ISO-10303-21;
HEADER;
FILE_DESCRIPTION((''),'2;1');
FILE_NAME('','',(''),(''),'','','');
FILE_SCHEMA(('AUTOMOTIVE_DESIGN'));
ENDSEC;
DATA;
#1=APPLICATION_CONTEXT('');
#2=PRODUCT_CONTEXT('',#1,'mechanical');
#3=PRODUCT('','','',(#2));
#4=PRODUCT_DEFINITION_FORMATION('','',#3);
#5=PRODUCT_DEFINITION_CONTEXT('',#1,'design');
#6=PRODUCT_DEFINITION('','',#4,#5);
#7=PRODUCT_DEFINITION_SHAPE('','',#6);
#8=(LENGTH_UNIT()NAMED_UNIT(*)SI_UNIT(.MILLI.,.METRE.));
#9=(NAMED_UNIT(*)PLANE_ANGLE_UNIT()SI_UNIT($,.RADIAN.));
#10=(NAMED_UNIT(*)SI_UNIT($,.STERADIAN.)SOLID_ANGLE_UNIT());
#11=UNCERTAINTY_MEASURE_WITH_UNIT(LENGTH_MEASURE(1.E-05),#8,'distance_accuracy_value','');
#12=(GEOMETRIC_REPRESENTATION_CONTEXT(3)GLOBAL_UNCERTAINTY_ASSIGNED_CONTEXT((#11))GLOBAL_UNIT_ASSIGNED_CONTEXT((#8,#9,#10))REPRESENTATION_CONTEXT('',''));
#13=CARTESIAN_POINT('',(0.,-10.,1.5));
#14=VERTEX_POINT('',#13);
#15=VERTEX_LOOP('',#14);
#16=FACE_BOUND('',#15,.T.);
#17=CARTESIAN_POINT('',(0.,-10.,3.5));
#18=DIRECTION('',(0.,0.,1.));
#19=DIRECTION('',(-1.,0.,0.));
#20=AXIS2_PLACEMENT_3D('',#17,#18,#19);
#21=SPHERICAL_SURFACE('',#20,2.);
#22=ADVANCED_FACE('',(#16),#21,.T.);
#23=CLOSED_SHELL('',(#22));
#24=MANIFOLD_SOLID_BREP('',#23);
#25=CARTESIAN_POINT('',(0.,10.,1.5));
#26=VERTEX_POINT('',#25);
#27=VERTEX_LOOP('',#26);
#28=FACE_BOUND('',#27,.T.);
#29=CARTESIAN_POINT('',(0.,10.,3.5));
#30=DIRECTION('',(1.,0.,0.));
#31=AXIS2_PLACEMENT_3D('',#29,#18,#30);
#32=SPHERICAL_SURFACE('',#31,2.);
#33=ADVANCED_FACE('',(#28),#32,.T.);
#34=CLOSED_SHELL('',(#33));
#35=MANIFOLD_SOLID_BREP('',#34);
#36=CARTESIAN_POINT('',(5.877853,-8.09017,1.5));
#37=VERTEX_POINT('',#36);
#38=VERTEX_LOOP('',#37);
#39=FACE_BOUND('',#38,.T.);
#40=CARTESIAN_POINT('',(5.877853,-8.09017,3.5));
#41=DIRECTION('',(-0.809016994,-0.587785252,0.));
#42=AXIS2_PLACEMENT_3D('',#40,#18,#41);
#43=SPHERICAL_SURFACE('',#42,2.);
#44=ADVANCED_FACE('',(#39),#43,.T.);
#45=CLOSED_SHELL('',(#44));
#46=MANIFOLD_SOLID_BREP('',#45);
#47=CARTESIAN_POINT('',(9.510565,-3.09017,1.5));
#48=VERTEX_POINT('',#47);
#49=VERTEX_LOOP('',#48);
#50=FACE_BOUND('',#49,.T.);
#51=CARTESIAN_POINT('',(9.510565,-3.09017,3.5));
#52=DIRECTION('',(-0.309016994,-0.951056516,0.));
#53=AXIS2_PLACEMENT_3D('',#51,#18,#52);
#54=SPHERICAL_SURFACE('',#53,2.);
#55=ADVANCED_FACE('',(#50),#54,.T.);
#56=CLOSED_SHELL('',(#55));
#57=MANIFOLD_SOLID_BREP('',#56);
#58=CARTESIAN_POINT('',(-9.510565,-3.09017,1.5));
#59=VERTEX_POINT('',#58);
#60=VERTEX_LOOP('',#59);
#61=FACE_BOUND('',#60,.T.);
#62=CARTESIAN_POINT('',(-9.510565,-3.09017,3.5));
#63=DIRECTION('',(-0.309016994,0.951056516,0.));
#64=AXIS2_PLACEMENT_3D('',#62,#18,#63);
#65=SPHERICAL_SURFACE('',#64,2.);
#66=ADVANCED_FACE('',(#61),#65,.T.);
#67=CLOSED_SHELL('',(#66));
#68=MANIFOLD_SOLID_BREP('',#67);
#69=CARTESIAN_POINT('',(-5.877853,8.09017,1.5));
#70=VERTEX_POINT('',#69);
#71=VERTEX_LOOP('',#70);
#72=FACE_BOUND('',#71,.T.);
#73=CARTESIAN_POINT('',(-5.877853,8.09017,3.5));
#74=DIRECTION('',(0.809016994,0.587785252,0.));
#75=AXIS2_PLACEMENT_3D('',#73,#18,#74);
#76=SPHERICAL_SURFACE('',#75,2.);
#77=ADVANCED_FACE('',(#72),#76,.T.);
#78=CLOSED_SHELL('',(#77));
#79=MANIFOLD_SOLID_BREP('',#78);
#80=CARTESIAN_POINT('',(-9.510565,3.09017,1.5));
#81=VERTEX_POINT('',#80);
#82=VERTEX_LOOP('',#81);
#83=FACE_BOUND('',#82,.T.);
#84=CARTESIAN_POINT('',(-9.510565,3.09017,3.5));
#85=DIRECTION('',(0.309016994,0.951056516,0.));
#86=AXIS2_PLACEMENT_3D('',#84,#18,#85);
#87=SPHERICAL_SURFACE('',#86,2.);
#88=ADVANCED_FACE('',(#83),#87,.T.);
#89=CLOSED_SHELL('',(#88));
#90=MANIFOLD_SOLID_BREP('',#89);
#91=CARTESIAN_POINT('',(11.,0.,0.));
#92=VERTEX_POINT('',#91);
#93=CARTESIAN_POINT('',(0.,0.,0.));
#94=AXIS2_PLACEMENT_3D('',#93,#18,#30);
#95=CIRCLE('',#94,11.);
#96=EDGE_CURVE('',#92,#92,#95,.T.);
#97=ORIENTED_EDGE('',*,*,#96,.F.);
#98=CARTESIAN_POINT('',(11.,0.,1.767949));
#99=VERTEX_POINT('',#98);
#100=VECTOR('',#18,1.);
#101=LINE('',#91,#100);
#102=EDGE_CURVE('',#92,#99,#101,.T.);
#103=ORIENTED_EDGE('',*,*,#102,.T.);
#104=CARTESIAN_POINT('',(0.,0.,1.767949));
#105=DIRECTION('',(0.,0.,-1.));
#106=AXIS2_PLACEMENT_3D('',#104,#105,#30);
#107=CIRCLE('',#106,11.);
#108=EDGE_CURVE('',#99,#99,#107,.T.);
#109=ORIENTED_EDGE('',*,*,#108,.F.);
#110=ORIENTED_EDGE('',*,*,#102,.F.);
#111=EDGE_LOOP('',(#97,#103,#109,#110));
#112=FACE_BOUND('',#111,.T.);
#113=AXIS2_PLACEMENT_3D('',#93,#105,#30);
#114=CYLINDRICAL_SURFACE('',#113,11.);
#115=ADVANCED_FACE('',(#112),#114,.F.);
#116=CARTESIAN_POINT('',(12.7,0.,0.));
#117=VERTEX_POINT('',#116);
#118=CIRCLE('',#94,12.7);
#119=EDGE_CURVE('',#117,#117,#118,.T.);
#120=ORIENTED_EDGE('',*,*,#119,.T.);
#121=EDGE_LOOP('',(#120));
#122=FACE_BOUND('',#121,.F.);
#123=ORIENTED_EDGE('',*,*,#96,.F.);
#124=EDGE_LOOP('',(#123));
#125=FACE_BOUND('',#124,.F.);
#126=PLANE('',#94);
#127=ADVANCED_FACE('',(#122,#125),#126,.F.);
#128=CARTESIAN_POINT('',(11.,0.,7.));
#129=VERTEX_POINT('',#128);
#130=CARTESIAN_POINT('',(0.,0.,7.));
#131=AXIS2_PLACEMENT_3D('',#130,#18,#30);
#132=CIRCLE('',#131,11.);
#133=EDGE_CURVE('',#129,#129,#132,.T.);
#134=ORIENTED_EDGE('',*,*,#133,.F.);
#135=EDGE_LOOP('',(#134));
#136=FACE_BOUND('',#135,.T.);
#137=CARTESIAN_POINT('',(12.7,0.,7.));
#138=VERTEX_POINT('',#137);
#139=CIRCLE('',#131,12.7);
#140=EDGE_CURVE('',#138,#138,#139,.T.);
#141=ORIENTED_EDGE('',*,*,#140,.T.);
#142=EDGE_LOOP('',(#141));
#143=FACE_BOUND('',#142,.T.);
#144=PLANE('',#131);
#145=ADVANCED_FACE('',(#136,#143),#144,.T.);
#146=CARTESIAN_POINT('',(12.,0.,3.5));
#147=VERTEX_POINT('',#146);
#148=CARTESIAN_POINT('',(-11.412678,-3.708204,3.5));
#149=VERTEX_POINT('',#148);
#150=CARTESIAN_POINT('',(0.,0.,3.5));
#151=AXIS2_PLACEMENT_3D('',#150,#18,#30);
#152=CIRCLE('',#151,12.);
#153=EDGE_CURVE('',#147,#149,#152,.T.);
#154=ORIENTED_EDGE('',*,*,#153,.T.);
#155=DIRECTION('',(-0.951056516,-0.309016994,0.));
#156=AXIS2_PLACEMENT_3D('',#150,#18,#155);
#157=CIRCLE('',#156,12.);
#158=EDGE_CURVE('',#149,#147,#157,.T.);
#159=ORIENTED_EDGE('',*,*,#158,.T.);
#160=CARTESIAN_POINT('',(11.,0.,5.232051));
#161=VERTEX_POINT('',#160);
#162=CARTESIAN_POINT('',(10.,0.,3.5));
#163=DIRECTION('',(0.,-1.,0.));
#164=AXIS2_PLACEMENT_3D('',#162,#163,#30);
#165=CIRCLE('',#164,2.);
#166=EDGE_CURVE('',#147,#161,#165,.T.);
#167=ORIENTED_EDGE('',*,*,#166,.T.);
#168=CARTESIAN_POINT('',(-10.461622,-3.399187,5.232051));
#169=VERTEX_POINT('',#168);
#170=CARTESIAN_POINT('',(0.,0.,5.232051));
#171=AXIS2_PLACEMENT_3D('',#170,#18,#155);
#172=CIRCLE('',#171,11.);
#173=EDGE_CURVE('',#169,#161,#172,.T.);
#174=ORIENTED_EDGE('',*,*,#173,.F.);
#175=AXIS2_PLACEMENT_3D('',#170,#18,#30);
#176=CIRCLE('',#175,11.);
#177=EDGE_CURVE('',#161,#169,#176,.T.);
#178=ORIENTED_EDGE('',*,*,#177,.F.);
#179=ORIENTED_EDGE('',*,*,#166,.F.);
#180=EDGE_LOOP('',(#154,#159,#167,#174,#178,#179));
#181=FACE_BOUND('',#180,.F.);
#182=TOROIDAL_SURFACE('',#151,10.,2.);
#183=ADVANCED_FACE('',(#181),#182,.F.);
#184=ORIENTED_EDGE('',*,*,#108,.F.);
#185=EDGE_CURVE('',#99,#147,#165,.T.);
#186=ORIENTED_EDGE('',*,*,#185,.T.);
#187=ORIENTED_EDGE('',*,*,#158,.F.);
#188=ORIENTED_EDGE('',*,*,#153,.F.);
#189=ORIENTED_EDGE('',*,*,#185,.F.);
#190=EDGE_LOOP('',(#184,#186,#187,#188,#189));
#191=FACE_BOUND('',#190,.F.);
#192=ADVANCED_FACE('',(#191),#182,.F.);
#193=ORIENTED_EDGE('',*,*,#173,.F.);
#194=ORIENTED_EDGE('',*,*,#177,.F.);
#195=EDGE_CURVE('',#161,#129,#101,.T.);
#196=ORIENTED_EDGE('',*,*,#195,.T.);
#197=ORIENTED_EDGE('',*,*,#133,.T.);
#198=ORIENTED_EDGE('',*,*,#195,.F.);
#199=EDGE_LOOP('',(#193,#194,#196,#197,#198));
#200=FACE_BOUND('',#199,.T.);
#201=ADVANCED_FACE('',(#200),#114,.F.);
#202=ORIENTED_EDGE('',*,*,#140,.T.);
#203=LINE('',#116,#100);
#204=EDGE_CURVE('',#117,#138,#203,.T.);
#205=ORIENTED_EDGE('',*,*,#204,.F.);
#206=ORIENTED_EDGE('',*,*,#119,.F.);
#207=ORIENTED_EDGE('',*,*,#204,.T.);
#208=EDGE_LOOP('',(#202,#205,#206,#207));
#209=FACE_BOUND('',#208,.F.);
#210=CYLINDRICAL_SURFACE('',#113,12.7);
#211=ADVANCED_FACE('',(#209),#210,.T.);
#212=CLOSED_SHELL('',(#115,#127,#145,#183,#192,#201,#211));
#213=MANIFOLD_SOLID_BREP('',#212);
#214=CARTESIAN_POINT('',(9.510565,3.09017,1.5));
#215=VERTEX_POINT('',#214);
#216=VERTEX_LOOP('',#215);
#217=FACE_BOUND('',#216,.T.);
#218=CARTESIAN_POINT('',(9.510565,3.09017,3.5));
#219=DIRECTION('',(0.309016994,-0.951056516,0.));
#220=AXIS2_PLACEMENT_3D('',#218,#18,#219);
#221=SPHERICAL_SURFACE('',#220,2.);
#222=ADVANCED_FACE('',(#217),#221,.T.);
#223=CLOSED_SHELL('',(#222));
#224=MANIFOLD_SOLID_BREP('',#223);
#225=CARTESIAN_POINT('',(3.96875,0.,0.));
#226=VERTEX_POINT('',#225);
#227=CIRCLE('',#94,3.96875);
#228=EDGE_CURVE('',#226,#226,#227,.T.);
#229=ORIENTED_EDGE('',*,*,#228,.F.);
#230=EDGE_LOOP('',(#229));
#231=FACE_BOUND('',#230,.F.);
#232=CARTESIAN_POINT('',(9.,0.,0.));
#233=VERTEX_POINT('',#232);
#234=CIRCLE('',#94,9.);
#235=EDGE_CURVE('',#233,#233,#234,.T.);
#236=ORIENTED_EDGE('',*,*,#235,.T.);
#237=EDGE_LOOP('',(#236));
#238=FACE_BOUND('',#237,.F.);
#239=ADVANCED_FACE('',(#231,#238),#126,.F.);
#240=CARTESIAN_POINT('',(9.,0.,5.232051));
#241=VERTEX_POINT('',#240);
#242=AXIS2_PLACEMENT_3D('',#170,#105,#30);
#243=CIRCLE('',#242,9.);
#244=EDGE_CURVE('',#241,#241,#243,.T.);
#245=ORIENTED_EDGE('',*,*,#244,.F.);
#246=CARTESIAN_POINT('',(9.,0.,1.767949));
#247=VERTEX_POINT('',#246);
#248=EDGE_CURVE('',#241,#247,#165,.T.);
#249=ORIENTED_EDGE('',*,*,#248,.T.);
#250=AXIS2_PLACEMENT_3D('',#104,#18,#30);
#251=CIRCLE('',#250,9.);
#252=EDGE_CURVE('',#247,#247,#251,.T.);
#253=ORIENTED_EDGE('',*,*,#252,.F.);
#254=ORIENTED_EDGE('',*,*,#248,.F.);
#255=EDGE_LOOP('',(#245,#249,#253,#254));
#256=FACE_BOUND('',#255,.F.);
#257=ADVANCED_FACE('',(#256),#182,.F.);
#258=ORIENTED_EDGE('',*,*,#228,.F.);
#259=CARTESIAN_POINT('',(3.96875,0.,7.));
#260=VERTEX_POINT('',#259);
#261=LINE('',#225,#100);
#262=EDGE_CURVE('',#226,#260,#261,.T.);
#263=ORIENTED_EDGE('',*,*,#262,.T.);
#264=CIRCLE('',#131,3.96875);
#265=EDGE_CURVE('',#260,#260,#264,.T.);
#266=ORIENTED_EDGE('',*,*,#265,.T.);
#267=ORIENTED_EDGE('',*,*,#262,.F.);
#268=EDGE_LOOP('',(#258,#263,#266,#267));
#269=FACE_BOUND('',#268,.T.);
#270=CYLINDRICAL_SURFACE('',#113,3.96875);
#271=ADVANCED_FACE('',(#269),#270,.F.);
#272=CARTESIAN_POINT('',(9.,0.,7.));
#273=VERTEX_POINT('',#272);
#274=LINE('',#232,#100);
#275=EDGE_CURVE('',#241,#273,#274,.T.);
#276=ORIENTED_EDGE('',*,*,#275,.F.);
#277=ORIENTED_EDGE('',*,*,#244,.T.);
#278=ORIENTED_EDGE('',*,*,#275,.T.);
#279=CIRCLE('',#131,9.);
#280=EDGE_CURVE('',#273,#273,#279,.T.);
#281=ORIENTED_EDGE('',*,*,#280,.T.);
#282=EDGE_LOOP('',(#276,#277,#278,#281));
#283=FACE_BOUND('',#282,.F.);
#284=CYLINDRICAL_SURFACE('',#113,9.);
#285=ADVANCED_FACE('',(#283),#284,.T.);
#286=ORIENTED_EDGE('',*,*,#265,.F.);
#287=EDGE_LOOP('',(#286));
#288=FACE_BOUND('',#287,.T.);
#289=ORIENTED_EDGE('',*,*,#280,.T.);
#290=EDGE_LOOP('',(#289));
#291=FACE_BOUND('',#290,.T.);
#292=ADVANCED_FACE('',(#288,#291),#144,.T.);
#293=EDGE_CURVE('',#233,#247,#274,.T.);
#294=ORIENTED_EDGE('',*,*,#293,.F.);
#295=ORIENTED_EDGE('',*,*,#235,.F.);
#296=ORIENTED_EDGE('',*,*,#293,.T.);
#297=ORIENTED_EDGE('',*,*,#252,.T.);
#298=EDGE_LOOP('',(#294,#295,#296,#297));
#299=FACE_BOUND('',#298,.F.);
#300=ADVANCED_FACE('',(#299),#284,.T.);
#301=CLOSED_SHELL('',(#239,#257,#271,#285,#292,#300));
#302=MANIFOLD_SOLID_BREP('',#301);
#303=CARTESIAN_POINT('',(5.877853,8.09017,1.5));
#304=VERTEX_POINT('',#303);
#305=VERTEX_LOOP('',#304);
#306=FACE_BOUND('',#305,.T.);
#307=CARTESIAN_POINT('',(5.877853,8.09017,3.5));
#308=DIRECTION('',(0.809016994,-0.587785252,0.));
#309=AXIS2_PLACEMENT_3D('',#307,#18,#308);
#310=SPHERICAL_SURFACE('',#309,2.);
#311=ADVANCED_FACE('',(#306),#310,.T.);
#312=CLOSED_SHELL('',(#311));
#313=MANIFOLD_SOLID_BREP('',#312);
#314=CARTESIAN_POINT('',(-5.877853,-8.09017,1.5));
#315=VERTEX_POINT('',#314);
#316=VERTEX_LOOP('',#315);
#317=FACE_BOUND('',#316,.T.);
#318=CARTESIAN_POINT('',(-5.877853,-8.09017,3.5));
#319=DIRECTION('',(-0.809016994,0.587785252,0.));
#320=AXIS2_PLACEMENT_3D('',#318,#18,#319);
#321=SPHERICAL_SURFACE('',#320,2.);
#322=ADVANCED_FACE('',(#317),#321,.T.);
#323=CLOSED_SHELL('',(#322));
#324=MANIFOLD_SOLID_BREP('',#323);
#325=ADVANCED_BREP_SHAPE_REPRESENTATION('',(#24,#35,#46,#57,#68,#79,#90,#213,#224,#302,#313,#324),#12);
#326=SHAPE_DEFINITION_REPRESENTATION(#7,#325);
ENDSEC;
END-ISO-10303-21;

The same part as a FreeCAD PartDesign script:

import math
import FreeCAD as App
import Part
import Sketcher

V = App.Vector

doc = App.newDocument("Part")
body = doc.addObject("PartDesign::Body", "Body")

# Sketch on XZ plane
sketch1 = doc.addObject("Sketcher::SketchObject", "Sketch")
body.addObject(sketch1)
sketch1.AttachmentSupport = (doc.XZ_Plane, [""])
sketch1.MapMode = "FlatFace"
sketch1.AttachmentOffset = App.Placement(V(0, 0, -10), App.Rotation())
sketch1.addGeometry([
    Part.ArcOfCircle(Part.Circle(V(0, 3.5, 0), V(0, 0, 1), 2), math.radians(-90), math.radians(90)),
    Part.LineSegment(V(0, 5.5, 0), V(0, 1.5, 0)),
], False)
sketch1.addConstraint([
    Sketcher.Constraint("Coincident", 0, 1, 1, 2),
    Sketcher.Constraint("Coincident", 1, 1, 0, 2),
    Sketcher.Constraint("Vertical", 1),
    Sketcher.Constraint("PointOnObject", 0, 3, -2),
    Sketcher.Constraint("PointOnObject", 0, 1, -2),
    Sketcher.Constraint("Radius", 0, 2.0),
    Sketcher.Constraint("DistanceY", -1, 1, 0, 3, 3.5),
])
revolution = doc.addObject("PartDesign::Revolution", "Revolution")
body.addObject(revolution)
revolution.Profile = sketch1
revolution.ReferenceAxis = (sketch1, ["V_Axis"])
revolution.Angle = 360
body2 = doc.addObject("PartDesign::Body", "Body001")
body2.AllowCompound = True
doc.recompute()

body2.BaseFeature = body
doc.recompute()

body3 = doc.addObject("PartDesign::Body", "Body002")
body3.BaseFeature = body
body3.Placement = App.Placement(V(0, 0, 0), App.Rotation(V(0, 0, 1), 36))
boolean = doc.addObject("PartDesign::Boolean", "Boolean")
body2.addObject(boolean)
boolean.Type = "Fuse"
boolean.addObjects([body3])
doc.recompute()

body4 = doc.addObject("PartDesign::Body", "Body003")
body4.BaseFeature = body
body4.Placement = App.Placement(V(0, 0, 0), App.Rotation(V(0, 0, 1), 72))
boolean2 = doc.addObject("PartDesign::Boolean", "Boolean001")
body2.addObject(boolean2)
boolean2.Type = "Fuse"
boolean2.addObjects([body4])
doc.recompute()

body5 = doc.addObject("PartDesign::Body", "Body004")
body5.BaseFeature = body
body5.Placement = App.Placement(V(0, 0, 0), App.Rotation(V(0, 0, 1), 108))
boolean3 = doc.addObject("PartDesign::Boolean", "Boolean002")
body2.addObject(boolean3)
boolean3.Type = "Fuse"
boolean3.addObjects([body5])
doc.recompute()

body6 = doc.addObject("PartDesign::Body", "Body005")
body6.BaseFeature = body
body6.Placement = App.Placement(V(0, 0, 0), App.Rotation(V(0, 0, 1), 144))
boolean4 = doc.addObject("PartDesign::Boolean", "Boolean003")
body2.addObject(boolean4)
boolean4.Type = "Fuse"
boolean4.addObjects([body6])
doc.recompute()

body7 = doc.addObject("PartDesign::Body", "Body006")
body7.BaseFeature = body
body7.Placement = App.Placement(V(0, 0, 0), App.Rotation(V(0, 0, 1), 180))
boolean5 = doc.addObject("PartDesign::Boolean", "Boolean004")
body2.addObject(boolean5)
boolean5.Type = "Fuse"
boolean5.addObjects([body7])
doc.recompute()

body8 = doc.addObject("PartDesign::Body", "Body007")
body8.BaseFeature = body
body8.Placement = App.Placement(V(0, 0, 0), App.Rotation(V(0, 0, 1), 216))
boolean6 = doc.addObject("PartDesign::Boolean", "Boolean005")
body2.addObject(boolean6)
boolean6.Type = "Fuse"
boolean6.addObjects([body8])
doc.recompute()

body9 = doc.addObject("PartDesign::Body", "Body008")
body9.BaseFeature = body
body9.Placement = App.Placement(V(0, 0, 0), App.Rotation(V(0, 0, 1), 252))
boolean7 = doc.addObject("PartDesign::Boolean", "Boolean006")
body2.addObject(boolean7)
boolean7.Type = "Fuse"
boolean7.addObjects([body9])
doc.recompute()

body10 = doc.addObject("PartDesign::Body", "Body009")
body10.BaseFeature = body
body10.Placement = App.Placement(V(0, 0, 0), App.Rotation(V(0, 0, 1), 288))
boolean8 = doc.addObject("PartDesign::Boolean", "Boolean007")
body2.addObject(boolean8)
boolean8.Type = "Fuse"
boolean8.addObjects([body10])
doc.recompute()

body.Placement = App.Placement(V(0, 0, 0), App.Rotation(V(0, 0, 1), 324))
boolean9 = doc.addObject("PartDesign::Boolean", "Boolean008")
body2.addObject(boolean9)
boolean9.Type = "Fuse"
boolean9.addObjects([body])
body11 = doc.addObject("PartDesign::Body", "Body010")

# Sketch on XZ plane
sketch2 = doc.addObject("Sketcher::SketchObject", "Sketch001")
body11.addObject(sketch2)
sketch2.AttachmentSupport = (doc.getObject("XZ_Plane010"), [""])
sketch2.MapMode = "FlatFace"
sketch2.addGeometry(Part.Circle(V(10, 3.5, 0), V(0, 0, 1), 2), False)
sketch2.addConstraint([
    Sketcher.Constraint("Diameter", 0, 4.0),
    Sketcher.Constraint("DistanceX", -1, 1, 0, 3, 10.0),
    Sketcher.Constraint("DistanceY", -1, 1, 0, 3, 3.5),
])
revolution2 = doc.addObject("PartDesign::Revolution", "Revolution001")
body11.addObject(revolution2)
revolution2.Profile = sketch2
revolution2.ReferenceAxis = (sketch2, ["V_Axis"])
revolution2.Angle = 360
body12 = doc.addObject("PartDesign::Body", "Body011")

# Sketch on XY plane
sketch3 = doc.addObject("Sketcher::SketchObject", "Sketch002")
body12.addObject(sketch3)
sketch3.AttachmentSupport = (doc.getObject("XY_Plane011"), [""])
sketch3.MapMode = "FlatFace"
sketch3.addGeometry(Part.Circle(V(0, 0, 0), V(0, 0, 1), 4), False)
sketch3.addConstraint([
    Sketcher.Constraint("Coincident", 0, 3, -1, 1),
    Sketcher.Constraint("Diameter", 0, 7.9375),
])
pad1 = doc.addObject("PartDesign::Pad", "Pad")
body12.addObject(pad1)
pad1.Profile = sketch3
pad1.Length = 7
body13 = doc.addObject("PartDesign::Body", "Body012")

# Sketch on XY plane
sketch4 = doc.addObject("Sketcher::SketchObject", "Sketch003")
body13.addObject(sketch4)
sketch4.AttachmentSupport = (doc.getObject("XY_Plane012"), [""])
sketch4.MapMode = "FlatFace"
sketch4.addGeometry(Part.Circle(V(0, 0, 0), V(0, 0, 1), 9), False)
sketch4.addConstraint([
    Sketcher.Constraint("Coincident", 0, 3, -1, 1),
    Sketcher.Constraint("Diameter", 0, 18.0),
])
pad2 = doc.addObject("PartDesign::Pad", "Pad001")
body13.addObject(pad2)
pad2.Profile = sketch4
pad2.Length = 7
doc.recompute()

boolean10 = doc.addObject("PartDesign::Boolean", "Boolean009")
body13.addObject(boolean10)
boolean10.Type = "Cut"
boolean10.addObjects([body12])
body14 = doc.addObject("PartDesign::Body", "Body013")

# Sketch on XY plane
sketch5 = doc.addObject("Sketcher::SketchObject", "Sketch004")
body14.addObject(sketch5)
sketch5.AttachmentSupport = (doc.getObject("XY_Plane013"), [""])
sketch5.MapMode = "FlatFace"
sketch5.addGeometry(Part.Circle(V(0, 0, 0), V(0, 0, 1), 11), False)
sketch5.addConstraint([
    Sketcher.Constraint("Coincident", 0, 3, -1, 1),
    Sketcher.Constraint("Diameter", 0, 22.0),
])
pad3 = doc.addObject("PartDesign::Pad", "Pad002")
body14.addObject(pad3)
pad3.Profile = sketch5
pad3.Length = 7
body15 = doc.addObject("PartDesign::Body", "Body014")
body15.AllowCompound = True

# Sketch on XY plane
sketch6 = doc.addObject("Sketcher::SketchObject", "Sketch005")
body15.addObject(sketch6)
sketch6.AttachmentSupport = (doc.getObject("XY_Plane014"), [""])
sketch6.MapMode = "FlatFace"
sketch6.addGeometry(Part.Circle(V(0, 0, 0), V(0, 0, 1), 13), False)
sketch6.addConstraint([
    Sketcher.Constraint("Coincident", 0, 3, -1, 1),
    Sketcher.Constraint("Diameter", 0, 25.4),
])
pad4 = doc.addObject("PartDesign::Pad", "Pad003")
body15.addObject(pad4)
pad4.Profile = sketch6
pad4.Length = 7
doc.recompute()

boolean11 = doc.addObject("PartDesign::Boolean", "Boolean010")
body15.addObject(boolean11)
boolean11.Type = "Cut"
boolean11.addObjects([body14])
doc.recompute()

boolean12 = doc.addObject("PartDesign::Boolean", "Boolean011")
body15.addObject(boolean12)
boolean12.Type = "Fuse"
boolean12.addObjects([body13])
doc.recompute()

boolean13 = doc.addObject("PartDesign::Boolean", "Boolean012")
body15.addObject(boolean13)
boolean13.Type = "Cut"
boolean13.addObjects([body11])
doc.recompute()

boolean14 = doc.addObject("PartDesign::Boolean", "Boolean013")
body15.addObject(boolean14)
boolean14.Type = "Fuse"
boolean14.addObjects([body2])

doc.recompute()
